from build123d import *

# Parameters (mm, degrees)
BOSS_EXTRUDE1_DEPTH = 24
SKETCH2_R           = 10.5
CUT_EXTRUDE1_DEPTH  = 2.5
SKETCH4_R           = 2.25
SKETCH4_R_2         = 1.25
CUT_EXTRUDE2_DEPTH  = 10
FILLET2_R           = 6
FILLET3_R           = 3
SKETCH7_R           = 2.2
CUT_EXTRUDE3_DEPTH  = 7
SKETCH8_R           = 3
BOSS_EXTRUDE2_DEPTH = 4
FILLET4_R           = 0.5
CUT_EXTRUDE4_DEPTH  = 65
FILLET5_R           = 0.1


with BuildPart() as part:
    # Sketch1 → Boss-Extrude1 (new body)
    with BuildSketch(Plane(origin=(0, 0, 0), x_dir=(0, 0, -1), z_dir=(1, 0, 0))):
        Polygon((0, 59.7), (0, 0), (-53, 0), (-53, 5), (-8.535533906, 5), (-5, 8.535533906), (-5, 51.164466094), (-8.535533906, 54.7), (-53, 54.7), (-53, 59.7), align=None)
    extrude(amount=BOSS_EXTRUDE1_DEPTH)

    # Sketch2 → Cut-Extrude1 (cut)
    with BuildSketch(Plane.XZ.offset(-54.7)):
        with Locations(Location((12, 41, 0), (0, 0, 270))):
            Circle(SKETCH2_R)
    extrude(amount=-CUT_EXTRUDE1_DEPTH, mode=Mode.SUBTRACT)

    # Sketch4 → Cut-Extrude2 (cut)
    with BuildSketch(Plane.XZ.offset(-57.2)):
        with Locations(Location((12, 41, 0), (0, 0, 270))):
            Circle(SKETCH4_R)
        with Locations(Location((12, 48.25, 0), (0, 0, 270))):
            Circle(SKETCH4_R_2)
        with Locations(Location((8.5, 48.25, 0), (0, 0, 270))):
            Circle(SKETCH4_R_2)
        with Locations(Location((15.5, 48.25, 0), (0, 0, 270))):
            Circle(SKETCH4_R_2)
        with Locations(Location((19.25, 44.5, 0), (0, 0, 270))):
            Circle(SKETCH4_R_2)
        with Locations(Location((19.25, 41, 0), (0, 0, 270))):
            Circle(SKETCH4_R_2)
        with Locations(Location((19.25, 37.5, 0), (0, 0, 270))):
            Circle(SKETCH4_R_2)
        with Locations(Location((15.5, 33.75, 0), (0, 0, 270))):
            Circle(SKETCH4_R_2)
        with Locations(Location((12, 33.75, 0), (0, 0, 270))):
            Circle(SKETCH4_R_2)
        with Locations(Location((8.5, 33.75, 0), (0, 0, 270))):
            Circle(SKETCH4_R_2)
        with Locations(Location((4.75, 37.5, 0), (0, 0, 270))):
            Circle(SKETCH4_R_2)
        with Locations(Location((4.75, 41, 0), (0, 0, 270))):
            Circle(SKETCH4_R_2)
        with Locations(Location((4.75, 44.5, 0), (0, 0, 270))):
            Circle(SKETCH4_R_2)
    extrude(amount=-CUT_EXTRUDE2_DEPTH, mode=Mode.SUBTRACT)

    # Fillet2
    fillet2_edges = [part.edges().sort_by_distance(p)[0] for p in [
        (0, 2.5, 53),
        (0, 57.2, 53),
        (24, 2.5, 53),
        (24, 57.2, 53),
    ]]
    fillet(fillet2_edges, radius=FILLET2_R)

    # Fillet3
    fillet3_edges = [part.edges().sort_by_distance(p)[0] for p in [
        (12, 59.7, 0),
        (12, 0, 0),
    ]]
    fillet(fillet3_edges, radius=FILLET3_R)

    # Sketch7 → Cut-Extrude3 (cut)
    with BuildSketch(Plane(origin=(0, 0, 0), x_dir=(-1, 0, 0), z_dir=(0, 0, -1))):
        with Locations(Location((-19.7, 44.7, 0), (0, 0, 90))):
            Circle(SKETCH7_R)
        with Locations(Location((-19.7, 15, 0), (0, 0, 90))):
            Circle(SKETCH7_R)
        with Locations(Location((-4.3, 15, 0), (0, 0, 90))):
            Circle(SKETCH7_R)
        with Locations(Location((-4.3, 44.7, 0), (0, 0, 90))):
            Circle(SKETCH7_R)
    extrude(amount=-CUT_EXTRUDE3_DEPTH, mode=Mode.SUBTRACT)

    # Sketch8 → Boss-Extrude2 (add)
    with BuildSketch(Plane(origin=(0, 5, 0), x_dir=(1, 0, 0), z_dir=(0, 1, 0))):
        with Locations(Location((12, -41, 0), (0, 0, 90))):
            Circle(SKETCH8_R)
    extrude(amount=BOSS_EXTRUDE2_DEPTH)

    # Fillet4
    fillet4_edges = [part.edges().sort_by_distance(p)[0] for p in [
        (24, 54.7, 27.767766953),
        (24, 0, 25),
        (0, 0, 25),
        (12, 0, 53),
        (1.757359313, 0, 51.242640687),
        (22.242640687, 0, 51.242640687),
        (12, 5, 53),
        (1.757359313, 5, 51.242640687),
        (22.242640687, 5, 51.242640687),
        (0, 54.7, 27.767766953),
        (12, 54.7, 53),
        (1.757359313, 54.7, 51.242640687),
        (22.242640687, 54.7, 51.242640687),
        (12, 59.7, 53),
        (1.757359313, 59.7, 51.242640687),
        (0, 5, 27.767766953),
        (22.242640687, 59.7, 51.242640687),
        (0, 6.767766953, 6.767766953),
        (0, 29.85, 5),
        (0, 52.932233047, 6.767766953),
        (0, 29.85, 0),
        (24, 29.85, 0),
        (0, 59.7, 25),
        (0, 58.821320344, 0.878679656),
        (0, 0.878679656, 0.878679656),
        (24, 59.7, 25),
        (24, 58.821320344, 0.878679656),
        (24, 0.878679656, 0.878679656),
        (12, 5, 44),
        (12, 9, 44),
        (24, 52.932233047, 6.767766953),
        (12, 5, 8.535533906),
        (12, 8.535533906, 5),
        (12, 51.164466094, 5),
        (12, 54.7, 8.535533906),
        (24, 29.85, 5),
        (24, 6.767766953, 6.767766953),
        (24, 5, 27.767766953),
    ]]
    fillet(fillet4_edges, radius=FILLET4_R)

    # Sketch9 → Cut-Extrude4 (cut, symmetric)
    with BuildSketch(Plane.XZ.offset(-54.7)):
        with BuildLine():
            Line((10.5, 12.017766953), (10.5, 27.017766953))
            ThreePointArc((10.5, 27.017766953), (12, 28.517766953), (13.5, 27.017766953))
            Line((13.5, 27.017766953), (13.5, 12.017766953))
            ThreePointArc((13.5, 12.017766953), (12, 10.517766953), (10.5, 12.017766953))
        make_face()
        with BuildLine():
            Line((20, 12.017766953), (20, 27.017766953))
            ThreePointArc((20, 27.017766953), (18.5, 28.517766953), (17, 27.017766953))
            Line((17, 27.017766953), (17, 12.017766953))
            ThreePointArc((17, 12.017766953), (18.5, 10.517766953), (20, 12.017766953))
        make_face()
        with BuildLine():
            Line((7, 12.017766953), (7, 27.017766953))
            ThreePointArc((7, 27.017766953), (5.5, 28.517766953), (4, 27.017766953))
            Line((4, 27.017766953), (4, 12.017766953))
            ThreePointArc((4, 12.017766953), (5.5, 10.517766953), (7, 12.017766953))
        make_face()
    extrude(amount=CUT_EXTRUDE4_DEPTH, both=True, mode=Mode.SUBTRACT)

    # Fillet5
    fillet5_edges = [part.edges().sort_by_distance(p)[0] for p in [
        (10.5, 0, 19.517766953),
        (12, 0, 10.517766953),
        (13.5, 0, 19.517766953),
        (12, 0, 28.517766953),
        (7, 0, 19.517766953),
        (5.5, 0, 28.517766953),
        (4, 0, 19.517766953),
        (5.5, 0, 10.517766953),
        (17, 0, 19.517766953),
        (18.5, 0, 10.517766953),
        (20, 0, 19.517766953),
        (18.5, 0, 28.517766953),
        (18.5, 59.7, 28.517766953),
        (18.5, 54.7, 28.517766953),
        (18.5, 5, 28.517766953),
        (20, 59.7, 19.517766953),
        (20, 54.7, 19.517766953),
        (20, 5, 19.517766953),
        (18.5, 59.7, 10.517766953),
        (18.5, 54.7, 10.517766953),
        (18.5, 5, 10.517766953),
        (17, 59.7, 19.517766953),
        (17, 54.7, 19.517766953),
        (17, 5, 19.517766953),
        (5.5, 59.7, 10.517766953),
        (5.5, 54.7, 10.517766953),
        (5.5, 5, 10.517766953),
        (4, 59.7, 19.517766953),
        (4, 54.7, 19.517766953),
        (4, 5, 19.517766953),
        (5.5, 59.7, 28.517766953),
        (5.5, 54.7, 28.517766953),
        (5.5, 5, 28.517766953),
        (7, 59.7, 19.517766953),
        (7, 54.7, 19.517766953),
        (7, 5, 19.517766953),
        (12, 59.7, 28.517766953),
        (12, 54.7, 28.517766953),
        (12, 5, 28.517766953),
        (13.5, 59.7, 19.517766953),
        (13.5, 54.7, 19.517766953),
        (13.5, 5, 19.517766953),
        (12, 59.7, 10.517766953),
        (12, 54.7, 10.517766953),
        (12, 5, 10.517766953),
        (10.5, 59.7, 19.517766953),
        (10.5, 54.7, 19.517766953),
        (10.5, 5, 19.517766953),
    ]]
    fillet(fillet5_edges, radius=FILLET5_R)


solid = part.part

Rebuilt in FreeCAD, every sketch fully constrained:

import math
import FreeCAD as App
import Part
import Sketcher
from FreeCAD import Vector


def edges_at(feature, points):
    """Names of the edges that pass closest to the given points."""
    edges = feature.Shape.Edges
    near = lambda p: min(range(len(edges)), key=lambda i: edges[i].distToShape(Part.Vertex(*p))[0])
    return sorted({f"Edge{near(p) + 1}" for p in points})


def add_polygon(sketch, points):
    """Adds a closed chain of lines whose ends are joined by coincident constraints."""
    first, n = sketch.GeometryCount, len(points)
    for a, b in zip(points, points[1:] + points[:1]):
        sketch.addGeometry(Part.LineSegment(App.Vector(*a, 0), App.Vector(*b, 0)), False)
    for i in range(n):
        sketch.addConstraint(Sketcher.Constraint("Coincident", first + i, 2, first + (i + 1) % n, 1))

doc = App.newDocument("Part")
params = doc.addObject("Spreadsheet::Sheet", "Params")
for row, (alias, value) in enumerate([
    ("sketch1_width", "5 mm"),
    ("sketch1_height", "53 mm"),
    ("sketch1_length", "5 mm"),
    ("sketch1_width2", "59.7 mm"),
    ("pad1_length", "24 mm"),
    ("sketch2_diameter", "21 mm"),
    ("pocket1_length", "2.5 mm"),
    ("sketch3_diameter", "4.5 mm"),
    ("sketch3_diameter2", "2.5 mm"),
    ("pocket2_length", "10 mm"),
    ("fillet_radius", "6 mm"),
    ("fillet2_radius", "3 mm"),
    ("sketch4_diameter", "4.4 mm"),
    ("pocket3_length", "7 mm"),
    ("sketch5_diameter", "6 mm"),
    ("pad2_length", "4 mm"),
    ("fillet3_radius", "0.5 mm"),
    ("sketch6_radius", "1.5 mm"),
    ("sketch6_height", "15 mm"),
    ("pocket4_length", "130 mm"),
    ("fillet4_radius", "0.1 mm"),
], start=1):
    params.set(f"A{row}", alias)
    params.set(f"B{row}", "=" + value)
    params.setAlias(f"B{row}", alias)

body = doc.addObject("PartDesign::Body", "Body")

# Sketch on YZ plane
sketch1 = body.newObject("Sketcher::SketchObject", "Sketch")
sketch1.AttachmentSupport = (doc.getObject("YZ_Plane"), [""])
sketch1.MapMode = "FlatFace"
add_polygon(sketch1, [(0, 0), (60, 0), (60, 53), (55, 53), (55, 9), (51, 5), (9, 5), (5, 9), (5, 53), (0, 53)])  # lines 0-9
sketch1.addConstraint(Sketcher.Constraint("Horizontal", 0))
sketch1.addConstraint(Sketcher.Constraint("Vertical", 1))
sketch1.addConstraint(Sketcher.Constraint("Horizontal", 2))
sketch1.addConstraint(Sketcher.Constraint("Vertical", 3))
sketch1.addConstraint(Sketcher.Constraint("Horizontal", 5))
sketch1.addConstraint(Sketcher.Constraint("Vertical", 7))
sketch1.addConstraint(Sketcher.Constraint("Horizontal", 8))
sketch1.addConstraint(Sketcher.Constraint("Vertical", 9))
sketch1.addConstraint(Sketcher.Constraint("Coincident", 9, 2, -1, 1))
sketch1.addConstraint(Sketcher.Constraint("Perpendicular", 4, 6))
sketch1.addConstraint(Sketcher.Constraint("Horizontal", 3, 2, 6, 2))
sketch1.addConstraint(Sketcher.Constraint("Horizontal", 2, 2, 7, 2))
sketch1.addConstraint(Sketcher.Constraint("Equal", 2, 8))
sketch1.addConstraint(Sketcher.Constraint("Equal", 4, 6))
sketch1.addConstraint(Sketcher.Constraint("DistanceX", 2, 2, 2, 1, 5.0))
sketch1.addConstraint(Sketcher.Constraint("DistanceY", 1, 1, 1, 2, 53.0))
sketch1.addConstraint(Sketcher.Constraint("Distance", 4, 5.0))
sketch1.addConstraint(Sketcher.Constraint("DistanceX", 0, 1, 0, 2, 59.7))
sketch1.addConstraint(Sketcher.Constraint("DistanceY", -1, 1, 4, 2, 5.0))
sketch1.setExpression("Constraints[24]", "Params.sketch1_width")
sketch1.setExpression("Constraints[25]", "Params.sketch1_height")
sketch1.setExpression("Constraints[26]", "Params.sketch1_length")
sketch1.setExpression("Constraints[27]", "Params.sketch1_width2")
pad1 = body.newObject("PartDesign::Pad", "Pad")
pad1.Profile = sketch1
pad1.setExpression("Length", "Params.pad1_length")

# Sketch on XZ plane
sketch2 = body.newObject("Sketcher::SketchObject", "Sketch001")
sketch2.AttachmentSupport = (doc.getObject("XZ_Plane"), [""])
sketch2.MapMode = "FlatFace"
sketch2.AttachmentOffset = App.Placement(Vector(0, 0, -54.7), App.Rotation())
sketch2.addGeometry(Part.Circle(Vector(12, 41, 0), Vector(0, 0, 1), 10), False)
sketch2.addConstraint(Sketcher.Constraint("Diameter", 0, 21.0))
sketch2.addConstraint(Sketcher.Constraint("DistanceX", -1, 1, 0, 3, 12.0))
sketch2.addConstraint(Sketcher.Constraint("DistanceY", -1, 1, 0, 3, 41.0))
sketch2.setExpression("Constraints[0]", "Params.sketch2_diameter")
pocket1 = body.newObject("PartDesign::Pocket", "Pocket")
pocket1.Profile = sketch2
pocket1.setExpression("Length", "Params.pocket1_length")

# Sketch on XZ plane
sketch3 = body.newObject("Sketcher::SketchObject", "Sketch002")
sketch3.AttachmentSupport = (doc.getObject("XZ_Plane"), [""])
sketch3.MapMode = "FlatFace"
sketch3.AttachmentOffset = App.Placement(Vector(0, 0, -57.2), App.Rotation())
sketch3.addGeometry(Part.Circle(Vector(12, 41, 0), Vector(0, 0, 1), 2.2), False)
sketch3.addGeometry(Part.Circle(Vector(12, 48.2, 0), Vector(0, 0, 1), 1.2), False)
sketch3.addGeometry(Part.Circle(Vector(8.5, 48.2, 0), Vector(0, 0, 1), 1.2), False)
sketch3.addGeometry(Part.Circle(Vector(15.5, 48.2, 0), Vector(0, 0, 1), 1.2), False)
sketch3.addGeometry(Part.Circle(Vector(19.2, 44.5, 0), Vector(0, 0, 1), 1.2), False)
sketch3.addGeometry(Part.Circle(Vector(19.2, 41, 0), Vector(0, 0, 1), 1.2), False)
sketch3.addGeometry(Part.Circle(Vector(19.2, 37.5, 0), Vector(0, 0, 1), 1.2), False)
sketch3.addGeometry(Part.Circle(Vector(15.5, 33.8, 0), Vector(0, 0, 1), 1.2), False)
sketch3.addGeometry(Part.Circle(Vector(12, 33.8, 0), Vector(0, 0, 1), 1.2), False)
sketch3.addGeometry(Part.Circle(Vector(8.5, 33.8, 0), Vector(0, 0, 1), 1.2), False)
sketch3.addGeometry(Part.Circle(Vector(4.8, 37.5, 0), Vector(0, 0, 1), 1.2), False)
sketch3.addGeometry(Part.Circle(Vector(4.8, 41, 0), Vector(0, 0, 1), 1.2), False)
sketch3.addGeometry(Part.Circle(Vector(4.8, 44.5, 0), Vector(0, 0, 1), 1.2), False)
sketch3.addConstraint(Sketcher.Constraint("Equal", 1, 2))
sketch3.addConstraint(Sketcher.Constraint("Equal", 2, 3))
sketch3.addConstraint(Sketcher.Constraint("Equal", 3, 4))
sketch3.addConstraint(Sketcher.Constraint("Equal", 4, 5))
sketch3.addConstraint(Sketcher.Constraint("Equal", 5, 6))
sketch3.addConstraint(Sketcher.Constraint("Equal", 6, 7))
sketch3.addConstraint(Sketcher.Constraint("Equal", 7, 8))
sketch3.addConstraint(Sketcher.Constraint("Equal", 8, 9))
sketch3.addConstraint(Sketcher.Constraint("Equal", 9, 10))
sketch3.addConstraint(Sketcher.Constraint("Equal", 10, 11))
sketch3.addConstraint(Sketcher.Constraint("Equal", 11, 12))
sketch3.addConstraint(Sketcher.Constraint("Horizontal", 1, 3, 2, 3))
sketch3.addConstraint(Sketcher.Constraint("Horizontal", 2, 3, 3, 3))
sketch3.addConstraint(Sketcher.Constraint("Horizontal", 0, 3, 5, 3))
sketch3.addConstraint(Sketcher.Constraint("Horizontal", 7, 3, 8, 3))
sketch3.addConstraint(Sketcher.Constraint("Horizontal", 8, 3, 9, 3))
sketch3.addConstraint(Sketcher.Constraint("Horizontal", 6, 3, 10, 3))
sketch3.addConstraint(Sketcher.Constraint("Horizontal", 5, 3, 11, 3))
sketch3.addConstraint(Sketcher.Constraint("Horizontal", 4, 3, 12, 3))
sketch3.addConstraint(Sketcher.Constraint("Vertical", 0, 3, 1, 3))
sketch3.addConstraint(Sketcher.Constraint("Vertical", 4, 3, 5, 3))
sketch3.addConstraint(Sketcher.Constraint("Vertical", 5, 3, 6, 3))
sketch3.addConstraint(Sketcher.Constraint("Vertical", 3, 3, 7, 3))
sketch3.addConstraint(Sketcher.Constraint("Vertical", 1, 3, 8, 3))
sketch3.addConstraint(Sketcher.Constraint("Vertical", 2, 3, 9, 3))
sketch3.addConstraint(Sketcher.Constraint("Vertical", 10, 3, 11, 3))
sketch3.addConstraint(Sketcher.Constraint("Vertical", 11, 3, 12, 3))
sketch3.addConstraint(Sketcher.Constraint("Diameter", 0, 4.5))
sketch3.addConstraint(Sketcher.Constraint("Diameter", 1, 2.5))
sketch3.addConstraint(Sketcher.Constraint("DistanceX", -1, 1, 0, 3, 12.0))
sketch3.addConstraint(Sketcher.Constraint("DistanceY", -1, 1, 0, 3, 41.0))
sketch3.addConstraint(Sketcher.Constraint("DistanceX", 2, 3, 3, 3, 7.0))
sketch3.addConstraint(Sketcher.Constraint("DistanceY", 6, 3, 4, 3, 7.0))
sketch3.addConstraint(Sketcher.Constraint("DistanceX", -1, 1, 2, 3, 8.5))
sketch3.addConstraint(Sketcher.Constraint("DistanceY", -1, 1, 4, 3, 44.5))
sketch3.addConstraint(Sketcher.Constraint("DistanceY", 7, 3, 3, 3, 14.5))
sketch3.addConstraint(Sketcher.Constraint("DistanceY", -1, 1, 1, 3, 48.25))
sketch3.addConstraint(Sketcher.Constraint("DistanceX", -1, 1, 4, 3, 19.25))
sketch3.addConstraint(Sketcher.Constraint("DistanceX", -1, 1, 10, 3, 4.75))
sketch3.setExpression("Constraints[27]", "Params.sketch3_diameter")
sketch3.setExpression("Constraints[28]", "Params.sketch3_diameter2")
pocket2 = body.newObject("PartDesign::Pocket", "Pocket001")
pocket2.Profile = sketch3
pocket2.setExpression("Length", "Params.pocket2_length")
doc.recompute()

fillet = body.newObject("PartDesign::Fillet", "Fillet")
fillet.Base = (pocket2, edges_at(pocket2, [
    (0, 2.5, 53),
    (0, 57.2, 53),
    (24, 2.5, 53),
    (24, 57.2, 53),
]))
fillet.setExpression("Radius", "Params.fillet_radius")
doc.recompute()

fillet2 = body.newObject("PartDesign::Fillet", "Fillet001")
fillet2.Base = (fillet, edges_at(fillet, [(12, 59.7, 0), (12, 0, 0)]))
fillet2.setExpression("Radius", "Params.fillet2_radius")

# Sketch on XY plane
sketch4 = body.newObject("Sketcher::SketchObject", "Sketch003")
sketch4.AttachmentSupport = (doc.getObject("XY_Plane"), [""])
sketch4.MapMode = "FlatFace"
sketch4.addGeometry(Part.Circle(Vector(19.7, 44.7, 0), Vector(0, 0, 1), 2.2), False)
sketch4.addGeometry(Part.Circle(Vector(19.7, 15, 0), Vector(0, 0, 1), 2.2), False)
sketch4.addGeometry(Part.Circle(Vector(4.3, 15, 0), Vector(0, 0, 1), 2.2), False)
sketch4.addGeometry(Part.Circle(Vector(4.3, 44.7, 0), Vector(0, 0, 1), 2.2), False)
sketch4.addConstraint(Sketcher.Constraint("Equal", 0, 1))
sketch4.addConstraint(Sketcher.Constraint("Equal", 1, 2))
sketch4.addConstraint(Sketcher.Constraint("Equal", 2, 3))
sketch4.addConstraint(Sketcher.Constraint("Horizontal", 1, 3, 2, 3))
sketch4.addConstraint(Sketcher.Constraint("Horizontal", 0, 3, 3, 3))
sketch4.addConstraint(Sketcher.Constraint("Vertical", 0, 3, 1, 3))
sketch4.addConstraint(Sketcher.Constraint("Vertical", 2, 3, 3, 3))
sketch4.addConstraint(Sketcher.Constraint("Diameter", 0, 4.4))
sketch4.addConstraint(Sketcher.Constraint("DistanceY", -1, 1, 1, 3, 15.0))
sketch4.addConstraint(Sketcher.Constraint("DistanceX", -1, 1, 0, 3, 19.7))
sketch4.addConstraint(Sketcher.Constraint("DistanceY", -1, 1, 0, 3, 44.7))
sketch4.addConstraint(Sketcher.Constraint("DistanceX", -1, 1, 2, 3, 4.3))
sketch4.setExpression("Constraints[7]", "Params.sketch4_diameter")
pocket3 = body.newObject("PartDesign::Pocket", "Pocket002")
pocket3.Profile = sketch4
pocket3.setExpression("Length", "Params.pocket3_length")
pocket3.Reversed = True

# Sketch on XZ plane
sketch5 = body.newObject("Sketcher::SketchObject", "Sketch004")
sketch5.AttachmentSupport = (doc.getObject("XZ_Plane"), [""])
sketch5.MapMode = "FlatFace"
sketch5.AttachmentOffset = App.Placement(Vector(0, 0, -5), App.Rotation())
sketch5.addGeometry(Part.Circle(Vector(12, 41, 0), Vector(0, 0, 1), 3), False)
sketch5.addConstraint(Sketcher.Constraint("Diameter", 0, 6.0))
sketch5.addConstraint(Sketcher.Constraint("DistanceX", -1, 1, 0, 3, 12.0))
sketch5.addConstraint(Sketcher.Constraint("DistanceY", -1, 1, 0, 3, 41.0))
sketch5.setExpression("Constraints[0]", "Params.sketch5_diameter")
pad2 = body.newObject("PartDesign::Pad", "Pad001")
pad2.Profile = sketch5
pad2.setExpression("Length", "Params.pad2_length")
pad2.Reversed = True
doc.recompute()

fillet3 = body.newObject("PartDesign::Fillet", "Fillet002")
fillet3.Base = (pad2, edges_at(pad2, [
    (24, 54.7, 27.768),
    (24, 0, 25),
    (0, 0, 25),
    (12, 0, 53),
    (1.757, 0, 51.243),
    (22.243, 0, 51.243),
    (12, 5, 53),
    (1.757, 5, 51.243),
    (22.243, 5, 51.243),
    (0, 54.7, 27.768),
    (12, 54.7, 53),
    (1.757, 54.7, 51.243),
    (22.243, 54.7, 51.243),
    (12, 59.7, 53),
    (1.757, 59.7, 51.243),
    (0, 5, 27.768),
    (22.243, 59.7, 51.243),
    (0, 6.768, 6.768),
    (0, 29.85, 5),
    (0, 52.932, 6.768),
    (0, 29.85, 0),
    (24, 29.85, 0),
    (0, 59.7, 25),
    (0, 58.821, 0.879),
    (0, 0.879, 0.879),
    (24, 59.7, 25),
    (24, 58.821, 0.879),
    (24, 0.879, 0.879),
    (12, 5, 44),
    (12, 9, 44),
    (24, 52.932, 6.768),
    (12, 5, 8.536),
    (12, 8.536, 5),
    (12, 51.164, 5),
    (12, 54.7, 8.536),
    (24, 29.85, 5),
    (24, 6.768, 6.768),
    (24, 5, 27.768),
]))
fillet3.setExpression("Radius", "Params.fillet3_radius")

# Sketch on XZ plane
sketch6 = body.newObject("Sketcher::SketchObject", "Sketch005")
sketch6.AttachmentSupport = (doc.getObject("XZ_Plane"), [""])
sketch6.MapMode = "FlatFace"
sketch6.AttachmentOffset = App.Placement(Vector(0, 0, -54.7), App.Rotation())
sketch6.addGeometry(Part.LineSegment(Vector(10.5, 27, 0), Vector(10.5, 12, 0)), False)
sketch6.addGeometry(Part.ArcOfCircle(Part.Circle(Vector(12, 12, 0), Vector(0, 0, 1), 1.5), math.radians(180), math.radians(360)), False)
sketch6.addGeometry(Part.LineSegment(Vector(13.5, 12, 0), Vector(13.5, 27, 0)), False)
sketch6.addGeometry(Part.ArcOfCircle(Part.Circle(Vector(12, 27, 0), Vector(0, 0, 1), 1.5), math.radians(0), math.radians(180)), False)
sketch6.addGeometry(Part.LineSegment(Vector(20, 12, 0), Vector(20, 27, 0)), False)
sketch6.addGeometry(Part.ArcOfCircle(Part.Circle(Vector(18.5, 27, 0), Vector(0, 0, 1), 1.5), math.radians(0), math.radians(180)), False)
sketch6.addGeometry(Part.LineSegment(Vector(17, 27, 0), Vector(17, 12, 0)), False)
sketch6.addGeometry(Part.ArcOfCircle(Part.Circle(Vector(18.5, 12, 0), Vector(0, 0, 1), 1.5), math.radians(180), math.radians(360)), False)
sketch6.addGeometry(Part.LineSegment(Vector(7, 12, 0), Vector(7, 27, 0)), False)
sketch6.addGeometry(Part.ArcOfCircle(Part.Circle(Vector(5.5, 27, 0), Vector(0, 0, 1), 1.5), math.radians(0), math.radians(180)), False)
sketch6.addGeometry(Part.LineSegment(Vector(4, 27, 0), Vector(4, 12, 0)), False)
sketch6.addGeometry(Part.ArcOfCircle(Part.Circle(Vector(5.5, 12, 0), Vector(0, 0, 1), 1.5), math.radians(180), math.radians(360)), False)
sketch6.addConstraint(Sketcher.Constraint("Tangent", 0, 2, 1, 1))
sketch6.addConstraint(Sketcher.Constraint("Tangent", 1, 2, 2, 1))
sketch6.addConstraint(Sketcher.Constraint("Tangent", 2, 2, 3, 1))
sketch6.addConstraint(Sketcher.Constraint("Tangent", 3, 2, 0, 1))
sketch6.addConstraint(Sketcher.Constraint("Tangent", 4, 2, 5, 1))
sketch6.addConstraint(Sketcher.Constraint("Tangent", 5, 2, 6, 1))
sketch6.addConstraint(Sketcher.Constraint("Tangent", 6, 2, 7, 1))
sketch6.addConstraint(Sketcher.Constraint("Tangent", 7, 2, 4, 1))
sketch6.addConstraint(Sketcher.Constraint("Tangent", 8, 2, 9, 1))
sketch6.addConstraint(Sketcher.Constraint("Tangent", 9, 2, 10, 1))
sketch6.addConstraint(Sketcher.Constraint("Tangent", 10, 2, 11, 1))
sketch6.addConstraint(Sketcher.Constraint("Tangent", 11, 2, 8, 1))
sketch6.addConstraint(Sketcher.Constraint("Vertical", 0))
sketch6.addConstraint(Sketcher.Constraint("Vertical", 2))
sketch6.addConstraint(Sketcher.Constraint("Vertical", 4))
sketch6.addConstraint(Sketcher.Constraint("Vertical", 6))
sketch6.addConstraint(Sketcher.Constraint("Vertical", 8))
sketch6.addConstraint(Sketcher.Constraint("Vertical", 10))
sketch6.addConstraint(Sketcher.Constraint("Equal", 3, 5))
sketch6.addConstraint(Sketcher.Constraint("Equal", 7, 9))
sketch6.addConstraint(Sketcher.Constraint("Horizontal", 3, 3, 5, 3))
sketch6.addConstraint(Sketcher.Constraint("Horizontal", 1, 3, 7, 3))
sketch6.addConstraint(Sketcher.Constraint("Horizontal", 5, 3, 9, 3))
sketch6.addConstraint(Sketcher.Constraint("Horizontal", 7, 3, 11, 3))
sketch6.addConstraint(Sketcher.Constraint("Radius", 1, 1.5))
sketch6.addConstraint(Sketcher.Constraint("DistanceY", 0, 2, 0, 1, 15.0))
sketch6.addConstraint(Sketcher.Constraint("DistanceX", -1, 1, 1, 3, 12.0))
sketch6.addConstraint(Sketcher.Constraint("DistanceX", -1, 1, 4, 2, 20.0))
sketch6.addConstraint(Sketcher.Constraint("DistanceX", -1, 1, 8, 2, 7.0))
sketch6.addConstraint(Sketcher.Constraint("DistanceY", -1, 1, 1, 3, 12.017767))
sketch6.setExpression("Constraints[24]", "Params.sketch6_radius")
sketch6.setExpression("Constraints[25]", "Params.sketch6_height")
pocket4 = body.newObject("PartDesign::Pocket", "Pocket003")
pocket4.Profile = sketch6
pocket4.setExpression("Length", "Params.pocket4_length")
pocket4.Midplane = True
doc.recompute()

fillet4 = body.newObject("PartDesign::Fillet", "Fillet003")
fillet4.Base = (pocket4, edges_at(pocket4, [
    (10.5, 0, 19.518),
    (12, 0, 10.518),
    (13.5, 0, 19.518),
    (12, 0, 28.518),
    (7, 0, 19.518),
    (5.5, 0, 28.518),
    (4, 0, 19.518),
    (5.5, 0, 10.518),
    (17, 0, 19.518),
    (18.5, 0, 10.518),
    (20, 0, 19.518),
    (18.5, 0, 28.518),
    (18.5, 59.7, 28.518),
    (18.5, 54.7, 28.518),
    (18.5, 5, 28.518),
    (20, 59.7, 19.518),
    (20, 54.7, 19.518),
    (20, 5, 19.518),
    (18.5, 59.7, 10.518),
    (18.5, 54.7, 10.518),
    (18.5, 5, 10.518),
    (17, 59.7, 19.518),
    (17, 54.7, 19.518),
    (17, 5, 19.518),
    (5.5, 59.7, 10.518),
    (5.5, 54.7, 10.518),
    (5.5, 5, 10.518),
    (4, 59.7, 19.518),
    (4, 54.7, 19.518),
    (4, 5, 19.518),
    (5.5, 59.7, 28.518),
    (5.5, 54.7, 28.518),
    (5.5, 5, 28.518),
    (7, 59.7, 19.518),
    (7, 54.7, 19.518),
    (7, 5, 19.518),
    (12, 59.7, 28.518),
    (12, 54.7, 28.518),
    (12, 5, 28.518),
    (13.5, 59.7, 19.518),
    (13.5, 54.7, 19.518),
    (13.5, 5, 19.518),
    (12, 59.7, 10.518),
    (12, 54.7, 10.518),
    (12, 5, 10.518),
    (10.5, 59.7, 19.518),
    (10.5, 54.7, 19.518),
    (10.5, 5, 19.518),
]))
fillet4.setExpression("Radius", "Params.fillet4_radius")

doc.recompute()
